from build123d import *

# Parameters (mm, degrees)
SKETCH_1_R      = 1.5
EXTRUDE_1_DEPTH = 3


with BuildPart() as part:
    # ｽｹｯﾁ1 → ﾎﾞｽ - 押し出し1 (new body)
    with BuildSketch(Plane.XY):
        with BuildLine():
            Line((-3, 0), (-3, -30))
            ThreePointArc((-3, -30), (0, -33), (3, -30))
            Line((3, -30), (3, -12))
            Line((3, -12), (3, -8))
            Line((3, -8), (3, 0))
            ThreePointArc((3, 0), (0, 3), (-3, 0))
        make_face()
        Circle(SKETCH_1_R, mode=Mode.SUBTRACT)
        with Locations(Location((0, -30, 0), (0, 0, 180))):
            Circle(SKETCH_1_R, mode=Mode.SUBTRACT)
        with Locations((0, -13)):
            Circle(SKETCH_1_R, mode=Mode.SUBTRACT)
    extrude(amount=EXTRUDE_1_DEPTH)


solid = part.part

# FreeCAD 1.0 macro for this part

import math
import FreeCAD as App
import Part
import Sketcher

doc = App.newDocument("Part")
body = doc.addObject("PartDesign::Body", "Body")

# Sketch on XY plane
sketch1 = body.newObject("Sketcher::SketchObject", "Sketch")
sketch1.AttachmentSupport = (doc.getObject("XY_Plane"), [""])
sketch1.MapMode = "FlatFace"
sketch1.addGeometry(Part.LineSegment(App.Vector(-3, 0, 0), App.Vector(-3, -30, 0)), False)
sketch1.addGeometry(Part.ArcOfCircle(Part.Circle(App.Vector(0, -30, 0), App.Vector(0, 0, 1), 3), math.radians(180), math.radians(360)), False)
sketch1.addGeometry(Part.LineSegment(App.Vector(3, -30, 0), App.Vector(3, 0, 0)), False)
sketch1.addGeometry(Part.ArcOfCircle(Part.Circle(App.Vector(0, 0, 0), App.Vector(0, 0, 1), 3), math.radians(0), math.radians(180)), False)
sketch1.addGeometry(Part.Circle(App.Vector(0, -30, 0), App.Vector(0, 0, 1), 1.5), False)
sketch1.addGeometry(Part.Circle(App.Vector(0, -13, 0), App.Vector(0, 0, 1), 1.5), False)
sketch1.addGeometry(Part.Circle(App.Vector(0, 0, 0), App.Vector(0, 0, 1), 1.5), False)
sketch1.addConstraint(Sketcher.Constraint("Tangent", 0, 2, 1, 1))
sketch1.addConstraint(Sketcher.Constraint("Tangent", 1, 2, 2, 1))
sketch1.addConstraint(Sketcher.Constraint("Tangent", 2, 2, 3, 1))
sketch1.addConstraint(Sketcher.Constraint("Tangent", 3, 2, 0, 1))
sketch1.addConstraint(Sketcher.Constraint("Vertical", 0))
sketch1.addConstraint(Sketcher.Constraint("Vertical", 2))
sketch1.addConstraint(Sketcher.Constraint("Coincident", 3, 3, -1, 1))
sketch1.addConstraint(Sketcher.Constraint("Coincident", 6, 3, -1, 1))
sketch1.addConstraint(Sketcher.Constraint("Coincident", 4, 3, 1, 3))
sketch1.addConstraint(Sketcher.Constraint("Equal", 4, 5))
sketch1.addConstraint(Sketcher.Constraint("Equal", 5, 6))
sketch1.addConstraint(Sketcher.Constraint("PointOnObject", 5, 3, -2))
sketch1.addConstraint(Sketcher.Constraint("Diameter", 4, 3.0))
sketch1.addConstraint(Sketcher.Constraint("Radius", 1, 3.0))
sketch1.addConstraint(Sketcher.Constraint("DistanceY", 0, 2, 0, 1, 30.0))
sketch1.addConstraint(Sketcher.Constraint("DistanceY", 5, 3, -1, 1, 13.0))
pad1 = body.newObject("PartDesign::Pad", "Pad")
pad1.Profile = sketch1
pad1.Length = 3

doc.recompute()
